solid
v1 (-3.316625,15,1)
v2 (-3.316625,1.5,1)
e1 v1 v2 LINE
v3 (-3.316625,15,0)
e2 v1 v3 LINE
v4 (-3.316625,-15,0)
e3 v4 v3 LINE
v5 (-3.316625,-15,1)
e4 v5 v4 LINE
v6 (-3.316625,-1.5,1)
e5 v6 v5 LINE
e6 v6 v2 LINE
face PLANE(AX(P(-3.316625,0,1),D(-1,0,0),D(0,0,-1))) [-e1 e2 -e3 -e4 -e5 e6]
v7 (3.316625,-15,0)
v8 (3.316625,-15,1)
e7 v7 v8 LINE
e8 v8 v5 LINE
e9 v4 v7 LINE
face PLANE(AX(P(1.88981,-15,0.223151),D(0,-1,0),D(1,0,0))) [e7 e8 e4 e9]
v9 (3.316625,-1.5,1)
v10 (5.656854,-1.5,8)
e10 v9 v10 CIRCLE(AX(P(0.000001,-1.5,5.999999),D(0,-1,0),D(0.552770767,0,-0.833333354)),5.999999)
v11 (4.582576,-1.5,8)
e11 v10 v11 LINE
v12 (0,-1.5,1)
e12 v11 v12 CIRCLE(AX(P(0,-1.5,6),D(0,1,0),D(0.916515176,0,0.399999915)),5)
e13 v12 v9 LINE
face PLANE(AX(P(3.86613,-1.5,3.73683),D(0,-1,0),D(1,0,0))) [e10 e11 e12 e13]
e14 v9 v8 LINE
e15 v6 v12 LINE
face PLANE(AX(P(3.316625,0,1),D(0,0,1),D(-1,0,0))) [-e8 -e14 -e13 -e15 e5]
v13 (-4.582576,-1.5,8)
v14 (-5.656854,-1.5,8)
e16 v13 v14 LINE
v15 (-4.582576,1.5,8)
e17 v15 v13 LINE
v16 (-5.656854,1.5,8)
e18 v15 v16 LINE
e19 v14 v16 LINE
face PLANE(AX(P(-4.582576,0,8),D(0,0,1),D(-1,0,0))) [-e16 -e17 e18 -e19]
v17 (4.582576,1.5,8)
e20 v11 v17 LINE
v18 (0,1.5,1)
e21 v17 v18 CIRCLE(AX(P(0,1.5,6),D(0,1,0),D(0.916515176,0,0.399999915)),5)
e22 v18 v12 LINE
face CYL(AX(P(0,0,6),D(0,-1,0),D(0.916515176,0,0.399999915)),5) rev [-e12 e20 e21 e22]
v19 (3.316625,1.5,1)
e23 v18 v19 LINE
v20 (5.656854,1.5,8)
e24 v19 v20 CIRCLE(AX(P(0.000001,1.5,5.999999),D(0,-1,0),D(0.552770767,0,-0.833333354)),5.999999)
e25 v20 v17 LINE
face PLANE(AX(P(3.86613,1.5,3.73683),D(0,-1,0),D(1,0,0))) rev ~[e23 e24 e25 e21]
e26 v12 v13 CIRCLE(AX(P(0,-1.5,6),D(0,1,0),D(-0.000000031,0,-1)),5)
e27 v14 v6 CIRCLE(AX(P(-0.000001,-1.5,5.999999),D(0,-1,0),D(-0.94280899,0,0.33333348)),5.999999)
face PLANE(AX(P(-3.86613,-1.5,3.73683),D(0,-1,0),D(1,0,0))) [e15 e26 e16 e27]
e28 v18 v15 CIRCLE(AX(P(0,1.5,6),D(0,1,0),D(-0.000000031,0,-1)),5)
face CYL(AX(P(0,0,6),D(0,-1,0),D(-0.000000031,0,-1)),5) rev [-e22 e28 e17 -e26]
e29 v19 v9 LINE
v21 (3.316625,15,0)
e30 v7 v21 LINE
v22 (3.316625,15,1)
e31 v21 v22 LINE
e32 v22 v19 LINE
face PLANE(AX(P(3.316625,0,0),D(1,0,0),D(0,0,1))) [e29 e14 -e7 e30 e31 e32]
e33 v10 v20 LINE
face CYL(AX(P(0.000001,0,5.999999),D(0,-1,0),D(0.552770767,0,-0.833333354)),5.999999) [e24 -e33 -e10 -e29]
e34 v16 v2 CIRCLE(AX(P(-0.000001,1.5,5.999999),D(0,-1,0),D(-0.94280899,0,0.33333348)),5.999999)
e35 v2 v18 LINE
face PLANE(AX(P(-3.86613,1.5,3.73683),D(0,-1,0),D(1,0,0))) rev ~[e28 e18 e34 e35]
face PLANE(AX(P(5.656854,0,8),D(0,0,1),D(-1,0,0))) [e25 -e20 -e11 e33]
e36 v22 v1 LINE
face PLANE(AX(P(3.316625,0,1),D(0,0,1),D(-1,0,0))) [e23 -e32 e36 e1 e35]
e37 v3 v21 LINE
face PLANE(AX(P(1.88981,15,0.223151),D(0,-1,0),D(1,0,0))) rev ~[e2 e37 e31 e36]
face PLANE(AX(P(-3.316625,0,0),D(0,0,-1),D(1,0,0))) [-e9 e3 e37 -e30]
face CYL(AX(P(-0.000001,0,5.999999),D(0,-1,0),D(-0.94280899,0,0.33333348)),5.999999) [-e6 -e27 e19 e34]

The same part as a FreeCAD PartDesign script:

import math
import FreeCAD as App
import Part
import Sketcher
from FreeCAD import Vector


def add_polygon(sketch, points):
    """Adds a closed chain of lines whose ends are joined by coincident constraints."""
    first, n = sketch.GeometryCount, len(points)
    for a, b in zip(points, points[1:] + points[:1]):
        sketch.addGeometry(Part.LineSegment(App.Vector(*a, 0), App.Vector(*b, 0)), False)
    for i in range(n):
        sketch.addConstraint(Sketcher.Constraint("Coincident", first + i, 2, first + (i + 1) % n, 1))

doc = App.newDocument("Part")
body = doc.addObject("PartDesign::Body", "Body")

# Sketch on XZ plane
sketch1 = body.newObject("Sketcher::SketchObject", "Sketch")
sketch1.AttachmentSupport = (doc.getObject("XZ_Plane"), [""])
sketch1.MapMode = "FlatFace"
add_polygon(sketch1, [(3.316625, 0), (3.316625, 1), (-3.316625, 1), (-3.316625, 0)])  # lines 0-3
sketch1.addConstraint(Sketcher.Constraint("Vertical", 0))
sketch1.addConstraint(Sketcher.Constraint("Horizontal", 1))
sketch1.addConstraint(Sketcher.Constraint("Vertical", 2))
sketch1.addConstraint(Sketcher.Constraint("Horizontal", 3))
sketch1.addConstraint(Sketcher.Constraint("Symmetric", 2, 2, 3, 2, -1, 1))
sketch1.addConstraint(Sketcher.Constraint("DistanceY", 0, 1, 0, 2, 1.0))
sketch1.addConstraint(Sketcher.Constraint("DistanceX", 1, 2, 1, 1, 6.63325))
pad1 = body.newObject("PartDesign::Pad", "Pad")
pad1.Profile = sketch1
pad1.Length = 30
pad1.Midplane = True

# Sketch on XZ plane
sketch2 = body.newObject("Sketcher::SketchObject", "Sketch001")
sketch2.AttachmentSupport = (doc.getObject("XZ_Plane"), [""])
sketch2.MapMode = "FlatFace"
sketch2.addGeometry(Part.ArcOfCircle(Part.Circle(Vector(-0.000001, 5.999999, 0), Vector(0, 0, 1), 5.999999), math.radians(160.52877), math.radians(236.442692)), False)
sketch2.addGeometry(Part.LineSegment(Vector(-3.316625, 1, 0), Vector(0, 1, 0)), False)
sketch2.addGeometry(Part.ArcOfCircle(Part.Circle(Vector(0, 6, 0), Vector(0, 0, 1), 5), math.radians(156.421827), math.radians(269.999998)), False)
sketch2.addGeometry(Part.LineSegment(Vector(-4.582576, 8, 0), Vector(-5.656854, 8, 0)), False)
sketch2.addGeometry(Part.ArcOfCircle(Part.Circle(Vector(0, 6, 0), Vector(0, 0, 1), 5), math.radians(-89.999998), math.radians(23.578173)), False)
sketch2.addGeometry(Part.LineSegment(Vector(0, 1, 0), Vector(3.316625, 1, 0)), False)
sketch2.addGeometry(Part.ArcOfCircle(Part.Circle(Vector(0.000001, 5.999999, 0), Vector(0, 0, 1), 5.999999), math.radians(-56.442692), math.radians(19.47123)), False)
sketch2.addGeometry(Part.LineSegment(Vector(5.656854, 8, 0), Vector(4.582576, 8, 0)), False)
sketch2.addConstraint(Sketcher.Constraint("Coincident", 0, 2, 1, 1))
sketch2.addConstraint(Sketcher.Constraint("Tangent", 1, 2, 2, 2))
sketch2.addConstraint(Sketcher.Constraint("Coincident", 2, 1, 3, 1))
sketch2.addConstraint(Sketcher.Constraint("Coincident", 3, 2, 0, 1))
sketch2.addConstraint(Sketcher.Constraint("Tangent", 4, 1, 5, 1))
sketch2.addConstraint(Sketcher.Constraint("Coincident", 5, 2, 6, 1))
sketch2.addConstraint(Sketcher.Constraint("Coincident", 6, 2, 7, 1))
sketch2.addConstraint(Sketcher.Constraint("Coincident", 7, 2, 4, 2))
sketch2.addConstraint(Sketcher.Constraint("Horizontal", 1))
sketch2.addConstraint(Sketcher.Constraint("Horizontal", 3))
sketch2.addConstraint(Sketcher.Constraint("Horizontal", 5))
sketch2.addConstraint(Sketcher.Constraint("Horizontal", 7))
sketch2.addConstraint(Sketcher.Constraint("Coincident", 2, 3, 0, 3))
sketch2.addConstraint(Sketcher.Constraint("Coincident", 4, 3, 0, 3))
sketch2.addConstraint(Sketcher.Constraint("Coincident", 6, 3, 0, 3))
sketch2.addConstraint(Sketcher.Constraint("Equal", 2, 4))
sketch2.addConstraint(Sketcher.Constraint("Equal", 0, 6))
sketch2.addConstraint(Sketcher.Constraint("Symmetric", 3, 2, 6, 2, -2))
sketch2.addConstraint(Sketcher.Constraint("Radius", 0, 5.999999))
sketch2.addConstraint(Sketcher.Constraint("Radius", 2, 5.0))
sketch2.addConstraint(Sketcher.Constraint("DistanceY", -1, 1, 0, 3, 5.999999))
sketch2.addConstraint(Sketcher.Constraint("DistanceY", -1, 1, 2, 1, 8.0))
pad2 = body.newObject("PartDesign::Pad", "Pad001")
pad2.Profile = sketch2
pad2.Length = 3
pad2.Midplane = True

doc.recompute()
